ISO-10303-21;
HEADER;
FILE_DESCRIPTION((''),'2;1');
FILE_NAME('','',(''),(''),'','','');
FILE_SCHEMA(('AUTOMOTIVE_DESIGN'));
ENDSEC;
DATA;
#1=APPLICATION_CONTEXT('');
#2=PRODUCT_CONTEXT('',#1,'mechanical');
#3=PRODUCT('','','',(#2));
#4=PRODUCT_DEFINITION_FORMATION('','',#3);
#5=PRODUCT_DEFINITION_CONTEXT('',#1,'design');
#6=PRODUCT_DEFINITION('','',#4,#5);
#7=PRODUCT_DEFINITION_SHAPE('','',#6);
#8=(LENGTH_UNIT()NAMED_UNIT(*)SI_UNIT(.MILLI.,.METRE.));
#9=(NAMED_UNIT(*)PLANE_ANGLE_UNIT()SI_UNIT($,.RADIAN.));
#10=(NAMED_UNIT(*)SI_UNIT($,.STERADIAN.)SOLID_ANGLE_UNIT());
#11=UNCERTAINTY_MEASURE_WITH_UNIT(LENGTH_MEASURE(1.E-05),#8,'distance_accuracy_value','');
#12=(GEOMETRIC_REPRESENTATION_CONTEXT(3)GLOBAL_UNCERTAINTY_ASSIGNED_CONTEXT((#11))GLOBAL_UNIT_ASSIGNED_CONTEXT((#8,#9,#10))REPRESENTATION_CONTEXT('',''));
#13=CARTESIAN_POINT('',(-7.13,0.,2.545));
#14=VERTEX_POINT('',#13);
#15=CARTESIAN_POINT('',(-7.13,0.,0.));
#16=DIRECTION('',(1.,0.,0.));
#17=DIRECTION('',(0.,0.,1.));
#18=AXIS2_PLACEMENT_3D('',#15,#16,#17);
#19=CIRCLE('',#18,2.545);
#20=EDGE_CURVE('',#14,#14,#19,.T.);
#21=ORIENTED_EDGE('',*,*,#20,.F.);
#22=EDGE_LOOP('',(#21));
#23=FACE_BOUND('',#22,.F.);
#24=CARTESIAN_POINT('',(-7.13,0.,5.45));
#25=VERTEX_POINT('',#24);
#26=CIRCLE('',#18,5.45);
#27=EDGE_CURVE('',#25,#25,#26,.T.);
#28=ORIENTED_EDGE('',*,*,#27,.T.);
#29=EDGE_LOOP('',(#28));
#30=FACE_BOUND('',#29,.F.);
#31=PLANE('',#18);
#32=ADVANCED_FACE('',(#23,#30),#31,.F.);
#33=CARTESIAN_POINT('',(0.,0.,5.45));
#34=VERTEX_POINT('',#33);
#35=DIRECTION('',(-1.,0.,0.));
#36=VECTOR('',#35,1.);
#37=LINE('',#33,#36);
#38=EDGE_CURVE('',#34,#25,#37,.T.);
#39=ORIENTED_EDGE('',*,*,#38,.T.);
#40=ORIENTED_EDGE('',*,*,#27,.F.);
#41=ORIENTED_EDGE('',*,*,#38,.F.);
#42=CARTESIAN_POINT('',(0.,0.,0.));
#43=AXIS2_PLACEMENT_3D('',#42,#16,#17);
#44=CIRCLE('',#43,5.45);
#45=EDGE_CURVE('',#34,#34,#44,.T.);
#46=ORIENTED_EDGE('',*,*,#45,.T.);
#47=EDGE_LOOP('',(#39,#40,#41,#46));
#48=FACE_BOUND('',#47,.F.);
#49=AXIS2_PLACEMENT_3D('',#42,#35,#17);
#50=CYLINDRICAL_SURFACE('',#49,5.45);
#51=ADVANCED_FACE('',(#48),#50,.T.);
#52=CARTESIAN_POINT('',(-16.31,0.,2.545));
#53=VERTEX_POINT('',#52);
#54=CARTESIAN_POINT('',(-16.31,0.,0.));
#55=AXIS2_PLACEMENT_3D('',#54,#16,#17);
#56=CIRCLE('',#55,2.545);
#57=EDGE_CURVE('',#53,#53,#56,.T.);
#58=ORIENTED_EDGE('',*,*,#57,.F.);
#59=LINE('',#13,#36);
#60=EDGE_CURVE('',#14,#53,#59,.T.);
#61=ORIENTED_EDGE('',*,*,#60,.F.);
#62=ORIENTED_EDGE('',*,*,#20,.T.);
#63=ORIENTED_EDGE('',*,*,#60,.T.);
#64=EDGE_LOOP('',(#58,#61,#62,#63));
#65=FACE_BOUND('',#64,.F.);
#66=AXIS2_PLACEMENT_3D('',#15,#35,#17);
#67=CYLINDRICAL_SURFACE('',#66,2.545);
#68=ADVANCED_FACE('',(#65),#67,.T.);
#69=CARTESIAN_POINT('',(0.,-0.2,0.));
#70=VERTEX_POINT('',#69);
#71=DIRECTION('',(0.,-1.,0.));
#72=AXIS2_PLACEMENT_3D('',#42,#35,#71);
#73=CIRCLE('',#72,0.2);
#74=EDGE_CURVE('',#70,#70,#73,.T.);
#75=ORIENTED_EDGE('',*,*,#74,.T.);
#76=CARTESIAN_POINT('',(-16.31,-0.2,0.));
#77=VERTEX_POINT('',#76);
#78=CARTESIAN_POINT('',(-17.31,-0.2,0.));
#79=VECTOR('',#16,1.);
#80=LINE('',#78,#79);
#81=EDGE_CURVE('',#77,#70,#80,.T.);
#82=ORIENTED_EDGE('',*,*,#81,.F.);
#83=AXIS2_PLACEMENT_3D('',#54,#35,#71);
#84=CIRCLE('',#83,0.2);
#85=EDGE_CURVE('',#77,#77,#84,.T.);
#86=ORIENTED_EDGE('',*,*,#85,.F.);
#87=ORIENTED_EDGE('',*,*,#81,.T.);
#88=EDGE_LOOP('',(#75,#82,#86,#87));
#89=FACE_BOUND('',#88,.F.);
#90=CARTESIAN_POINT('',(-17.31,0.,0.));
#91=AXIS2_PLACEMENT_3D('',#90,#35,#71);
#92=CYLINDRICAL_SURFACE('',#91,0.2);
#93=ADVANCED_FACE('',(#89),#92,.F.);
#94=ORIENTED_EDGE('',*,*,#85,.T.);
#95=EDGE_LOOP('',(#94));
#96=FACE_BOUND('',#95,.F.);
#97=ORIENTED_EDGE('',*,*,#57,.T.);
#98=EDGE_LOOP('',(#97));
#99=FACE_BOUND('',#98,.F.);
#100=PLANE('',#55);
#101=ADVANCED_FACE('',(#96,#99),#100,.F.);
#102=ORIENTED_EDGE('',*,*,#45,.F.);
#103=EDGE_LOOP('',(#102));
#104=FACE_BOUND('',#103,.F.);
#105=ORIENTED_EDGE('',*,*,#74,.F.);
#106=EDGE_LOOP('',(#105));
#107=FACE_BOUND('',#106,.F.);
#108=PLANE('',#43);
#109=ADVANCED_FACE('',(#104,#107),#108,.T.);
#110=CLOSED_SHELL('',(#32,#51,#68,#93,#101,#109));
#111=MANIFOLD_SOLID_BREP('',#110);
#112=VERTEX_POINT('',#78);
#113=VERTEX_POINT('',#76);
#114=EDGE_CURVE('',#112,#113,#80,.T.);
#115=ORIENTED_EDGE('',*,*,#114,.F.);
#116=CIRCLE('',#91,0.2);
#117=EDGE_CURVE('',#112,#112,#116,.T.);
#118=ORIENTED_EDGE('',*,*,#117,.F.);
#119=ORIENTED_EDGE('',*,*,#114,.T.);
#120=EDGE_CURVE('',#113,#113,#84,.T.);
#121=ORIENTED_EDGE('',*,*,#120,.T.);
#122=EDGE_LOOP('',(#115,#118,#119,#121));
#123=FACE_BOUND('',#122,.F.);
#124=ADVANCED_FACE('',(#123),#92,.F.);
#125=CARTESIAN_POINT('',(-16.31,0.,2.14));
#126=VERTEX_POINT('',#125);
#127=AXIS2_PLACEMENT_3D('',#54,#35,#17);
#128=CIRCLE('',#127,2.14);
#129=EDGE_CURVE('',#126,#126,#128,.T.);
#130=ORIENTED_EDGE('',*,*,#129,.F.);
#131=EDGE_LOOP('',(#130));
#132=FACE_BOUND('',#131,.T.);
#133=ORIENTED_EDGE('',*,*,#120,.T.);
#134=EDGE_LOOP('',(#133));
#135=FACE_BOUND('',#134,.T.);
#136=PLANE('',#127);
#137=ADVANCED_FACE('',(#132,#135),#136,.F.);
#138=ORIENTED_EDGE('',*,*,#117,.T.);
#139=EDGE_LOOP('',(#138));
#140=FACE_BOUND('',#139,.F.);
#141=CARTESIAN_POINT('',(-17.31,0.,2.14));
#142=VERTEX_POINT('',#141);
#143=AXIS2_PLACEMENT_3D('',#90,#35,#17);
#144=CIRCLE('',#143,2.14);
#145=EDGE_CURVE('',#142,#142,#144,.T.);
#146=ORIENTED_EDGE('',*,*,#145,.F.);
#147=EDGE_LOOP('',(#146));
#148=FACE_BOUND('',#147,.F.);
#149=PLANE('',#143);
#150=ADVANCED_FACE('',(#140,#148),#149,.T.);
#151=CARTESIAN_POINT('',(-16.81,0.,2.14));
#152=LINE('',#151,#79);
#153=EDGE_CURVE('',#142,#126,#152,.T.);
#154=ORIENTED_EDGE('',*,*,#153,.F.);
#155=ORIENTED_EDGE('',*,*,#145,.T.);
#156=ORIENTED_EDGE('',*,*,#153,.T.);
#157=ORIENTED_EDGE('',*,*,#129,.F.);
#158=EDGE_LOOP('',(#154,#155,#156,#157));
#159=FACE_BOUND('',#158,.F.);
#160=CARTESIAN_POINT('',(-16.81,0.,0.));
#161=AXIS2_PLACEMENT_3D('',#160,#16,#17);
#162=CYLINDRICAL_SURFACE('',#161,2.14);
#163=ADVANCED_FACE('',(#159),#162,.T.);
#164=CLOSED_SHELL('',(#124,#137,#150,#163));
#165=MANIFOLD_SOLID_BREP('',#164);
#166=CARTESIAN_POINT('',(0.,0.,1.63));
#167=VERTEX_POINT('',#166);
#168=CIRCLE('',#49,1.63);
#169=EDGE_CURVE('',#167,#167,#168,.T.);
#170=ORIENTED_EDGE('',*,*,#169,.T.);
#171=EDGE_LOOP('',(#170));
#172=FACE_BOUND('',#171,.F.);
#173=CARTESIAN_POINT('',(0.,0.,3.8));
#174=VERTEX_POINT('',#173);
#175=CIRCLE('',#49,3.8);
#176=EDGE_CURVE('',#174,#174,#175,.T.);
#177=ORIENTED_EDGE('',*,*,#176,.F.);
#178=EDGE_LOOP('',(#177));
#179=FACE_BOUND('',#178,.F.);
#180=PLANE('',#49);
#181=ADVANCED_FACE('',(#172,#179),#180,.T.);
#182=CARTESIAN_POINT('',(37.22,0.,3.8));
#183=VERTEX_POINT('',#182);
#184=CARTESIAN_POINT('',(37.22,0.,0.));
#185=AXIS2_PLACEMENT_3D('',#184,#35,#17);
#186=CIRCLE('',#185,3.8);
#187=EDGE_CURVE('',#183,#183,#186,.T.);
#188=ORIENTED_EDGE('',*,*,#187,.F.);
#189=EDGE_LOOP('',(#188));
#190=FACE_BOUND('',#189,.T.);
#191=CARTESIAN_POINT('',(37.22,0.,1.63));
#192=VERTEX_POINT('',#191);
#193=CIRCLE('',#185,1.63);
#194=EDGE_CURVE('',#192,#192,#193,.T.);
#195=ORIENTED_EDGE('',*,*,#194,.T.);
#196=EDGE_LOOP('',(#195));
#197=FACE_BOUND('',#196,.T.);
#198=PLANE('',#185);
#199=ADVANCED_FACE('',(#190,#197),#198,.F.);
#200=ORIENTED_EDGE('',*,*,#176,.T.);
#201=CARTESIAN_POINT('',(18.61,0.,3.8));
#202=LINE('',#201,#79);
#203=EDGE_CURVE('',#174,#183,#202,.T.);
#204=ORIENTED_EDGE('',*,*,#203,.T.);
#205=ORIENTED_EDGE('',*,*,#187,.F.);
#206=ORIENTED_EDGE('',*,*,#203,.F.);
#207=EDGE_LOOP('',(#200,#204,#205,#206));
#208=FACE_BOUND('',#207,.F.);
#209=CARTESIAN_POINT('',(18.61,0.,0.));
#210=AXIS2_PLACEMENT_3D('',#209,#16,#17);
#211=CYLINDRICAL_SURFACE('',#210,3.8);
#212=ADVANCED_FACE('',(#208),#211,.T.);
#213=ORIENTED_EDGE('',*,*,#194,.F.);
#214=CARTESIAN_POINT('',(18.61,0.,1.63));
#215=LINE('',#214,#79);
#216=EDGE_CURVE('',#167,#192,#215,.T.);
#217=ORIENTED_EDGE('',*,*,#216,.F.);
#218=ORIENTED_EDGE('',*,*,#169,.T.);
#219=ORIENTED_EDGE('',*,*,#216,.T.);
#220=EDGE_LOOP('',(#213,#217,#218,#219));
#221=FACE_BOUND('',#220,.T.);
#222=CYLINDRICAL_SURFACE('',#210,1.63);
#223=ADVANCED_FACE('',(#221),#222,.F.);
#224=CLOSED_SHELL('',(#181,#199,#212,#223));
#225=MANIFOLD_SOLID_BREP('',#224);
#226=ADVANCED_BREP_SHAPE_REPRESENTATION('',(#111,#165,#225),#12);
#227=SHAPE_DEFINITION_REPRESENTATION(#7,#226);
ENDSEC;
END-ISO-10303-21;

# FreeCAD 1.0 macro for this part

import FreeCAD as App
import Part
import Sketcher
from FreeCAD import Vector
Q = App.Units.Quantity


def add_polygon(sketch, points):
    """Adds a closed chain of lines whose ends are joined by coincident constraints."""
    first, n = sketch.GeometryCount, len(points)
    for a, b in zip(points, points[1:] + points[:1]):
        sketch.addGeometry(Part.LineSegment(App.Vector(*a, 0), App.Vector(*b, 0)), False)
    for i in range(n):
        sketch.addConstraint(Sketcher.Constraint("Coincident", first + i, 2, first + (i + 1) % n, 1))

doc = App.newDocument("Part")
params = doc.addObject("Spreadsheet::Sheet", "Params")
for row, (alias, value) in enumerate([
    ("sketch1_width", "37.22 mm"),
    ("sketch1_height", "2.17 mm"),
    ("revolution_angle", "360 deg"),
    ("sketch2_width", "16.31 mm"),
    ("sketch2_width2", "7.13 mm"),
    ("sketch2_height", "5.45 mm"),
    ("revolution2_angle", "360 deg"),
    ("sketch3_width", "1 mm"),
    ("sketch3_height", "2.14 mm"),
    ("revolution3_angle", "360 deg"),
    ("sketch4_diameter", "0.4 mm"),
    ("pad1_length", "54.531 mm"),
], start=1):
    params.set(f"A{row}", alias)
    params.set(f"B{row}", "=" + value)
    params.setAlias(f"B{row}", alias)

body = doc.addObject("PartDesign::Body", "Body")

# Sketch on XZ plane
sketch1 = body.newObject("Sketcher::SketchObject", "Sketch")
sketch1.AttachmentSupport = (doc.getObject("XZ_Plane"), [""])
sketch1.MapMode = "FlatFace"
add_polygon(sketch1, [(0, 3.8), (0, 1.6), (37.2, 1.6), (37.2, 3.8)])  # lines 0-3
sketch1.addConstraint([
    Sketcher.Constraint("Vertical", 0),
    Sketcher.Constraint("Horizontal", 1),
    Sketcher.Constraint("Vertical", 2),
    Sketcher.Constraint("Horizontal", 3),
    Sketcher.Constraint("PointOnObject", 0, 2, -2),
    Sketcher.Constraint("DistanceX", 1, 1, 1, 2, Q("37.22 mm")),
    Sketcher.Constraint("DistanceY", 0, 2, 0, 1, Q("2.17 mm")),
    Sketcher.Constraint("DistanceY", -1, 1, 2, 2, Q("3.8 mm")),
])
sketch1.setExpression("Constraints[9]", "Params.sketch1_width")
sketch1.setExpression("Constraints[10]", "Params.sketch1_height")
revolution = body.newObject("PartDesign::Revolution", "Revolution")
revolution.Profile = sketch1
revolution.ReferenceAxis = (sketch1, ["H_Axis"])
revolution.setExpression("Angle", "Params.revolution_angle")
body2 = doc.addObject("PartDesign::Body", "Body001")

# Sketch on XZ plane
sketch2 = body2.newObject("Sketcher::SketchObject", "Sketch001")
sketch2.AttachmentSupport = (doc.getObject("XZ_Plane001"), [""])
sketch2.MapMode = "FlatFace"
add_polygon(sketch2, [(-16.3, 0), (0, 0), (0, 5.5), (-7.1, 5.5), (-7.1, 2.5), (-16.3, 2.5)])  # lines 0-5
sketch2.addConstraint([
    Sketcher.Constraint("Horizontal", 0),
    Sketcher.Constraint("Vertical", 1),
    Sketcher.Constraint("Horizontal", 2),
    Sketcher.Constraint("Vertical", 3),
    Sketcher.Constraint("Horizontal", 4),
    Sketcher.Constraint("Vertical", 5),
    Sketcher.Constraint("Coincident", 0, 2, -1, 1),
    Sketcher.Constraint("DistanceX", 0, 1, 0, 2, Q("16.31 mm")),
    Sketcher.Constraint("DistanceX", 2, 2, 2, 1, Q("7.13 mm")),
    Sketcher.Constraint("DistanceY", 1, 1, 1, 2, Q("5.45 mm")),
    Sketcher.Constraint("DistanceY", 3, 2, 3, 1, Q("2.905 mm")),
])
sketch2.setExpression("Constraints[13]", "Params.sketch2_width")
sketch2.setExpression("Constraints[14]", "Params.sketch2_width2")
sketch2.setExpression("Constraints[15]", "Params.sketch2_height")
revolution2 = body2.newObject("PartDesign::Revolution", "Revolution001")
revolution2.Profile = sketch2
revolution2.ReferenceAxis = (sketch2, ["H_Axis"])
revolution2.setExpression("Angle", "Params.revolution2_angle")
body3 = doc.addObject("PartDesign::Body", "Body002")

# Sketch on XZ plane
sketch3 = body3.newObject("Sketcher::SketchObject", "Sketch002")
sketch3.AttachmentSupport = (doc.getObject("XZ_Plane002"), [""])
sketch3.MapMode = "FlatFace"
add_polygon(sketch3, [(-17.3, 2.1), (-17.3, 0), (-16.3, 0), (-16.3, 2.1)])  # lines 0-3
sketch3.addConstraint([
    Sketcher.Constraint("Vertical", 0),
    Sketcher.Constraint("Horizontal", 1),
    Sketcher.Constraint("Vertical", 2),
    Sketcher.Constraint("Horizontal", 3),
    Sketcher.Constraint("PointOnObject", 0, 2, -1),
    Sketcher.Constraint("DistanceX", 1, 1, 1, 2, Q("1 mm")),
    Sketcher.Constraint("DistanceY", 0, 2, 0, 1, Q("2.14 mm")),
    Sketcher.Constraint("DistanceX", 0, 2, -1, 1, Q("17.31 mm")),
])
sketch3.setExpression("Constraints[9]", "Params.sketch3_width")
sketch3.setExpression("Constraints[10]", "Params.sketch3_height")
revolution3 = body3.newObject("PartDesign::Revolution", "Revolution002")
revolution3.Profile = sketch3
revolution3.ReferenceAxis = (sketch3, ["H_Axis"])
revolution3.setExpression("Angle", "Params.revolution3_angle")
body4 = doc.addObject("PartDesign::Body", "Body003")

# Sketch on YZ plane
sketch4 = body4.newObject("Sketcher::SketchObject", "Sketch003")
sketch4.AttachmentSupport = (doc.getObject("YZ_Plane003"), [""])
sketch4.MapMode = "FlatFace"
sketch4.AttachmentOffset = App.Placement(Vector(0, 0, -17.31), App.Rotation())
sketch4.addGeometry(Part.Circle(Vector(0, 0, 0), Vector(0, 0, 1), 0.2), False)
sketch4.addConstraint([
    Sketcher.Constraint("Coincident", 0, 3, -1, 1),
    Sketcher.Constraint("Diameter", 0, Q("0.4 mm")),
])
sketch4.setExpression("Constraints[1]", "Params.sketch4_diameter")
pad1 = body4.newObject("PartDesign::Pad", "Pad")
pad1.Profile = sketch4
pad1.setExpression("Length", "Params.pad1_length")
doc.recompute()

body5 = doc.addObject("PartDesign::Body", "Body004")
body5.BaseFeature = body4
boolean = body2.newObject("PartDesign::Boolean", "Boolean")
boolean.Type = "Cut"
boolean.addObjects([body5])
doc.recompute()

boolean2 = body3.newObject("PartDesign::Boolean", "Boolean001")
boolean2.Type = "Cut"
boolean2.addObjects([body4])

doc.recompute()
